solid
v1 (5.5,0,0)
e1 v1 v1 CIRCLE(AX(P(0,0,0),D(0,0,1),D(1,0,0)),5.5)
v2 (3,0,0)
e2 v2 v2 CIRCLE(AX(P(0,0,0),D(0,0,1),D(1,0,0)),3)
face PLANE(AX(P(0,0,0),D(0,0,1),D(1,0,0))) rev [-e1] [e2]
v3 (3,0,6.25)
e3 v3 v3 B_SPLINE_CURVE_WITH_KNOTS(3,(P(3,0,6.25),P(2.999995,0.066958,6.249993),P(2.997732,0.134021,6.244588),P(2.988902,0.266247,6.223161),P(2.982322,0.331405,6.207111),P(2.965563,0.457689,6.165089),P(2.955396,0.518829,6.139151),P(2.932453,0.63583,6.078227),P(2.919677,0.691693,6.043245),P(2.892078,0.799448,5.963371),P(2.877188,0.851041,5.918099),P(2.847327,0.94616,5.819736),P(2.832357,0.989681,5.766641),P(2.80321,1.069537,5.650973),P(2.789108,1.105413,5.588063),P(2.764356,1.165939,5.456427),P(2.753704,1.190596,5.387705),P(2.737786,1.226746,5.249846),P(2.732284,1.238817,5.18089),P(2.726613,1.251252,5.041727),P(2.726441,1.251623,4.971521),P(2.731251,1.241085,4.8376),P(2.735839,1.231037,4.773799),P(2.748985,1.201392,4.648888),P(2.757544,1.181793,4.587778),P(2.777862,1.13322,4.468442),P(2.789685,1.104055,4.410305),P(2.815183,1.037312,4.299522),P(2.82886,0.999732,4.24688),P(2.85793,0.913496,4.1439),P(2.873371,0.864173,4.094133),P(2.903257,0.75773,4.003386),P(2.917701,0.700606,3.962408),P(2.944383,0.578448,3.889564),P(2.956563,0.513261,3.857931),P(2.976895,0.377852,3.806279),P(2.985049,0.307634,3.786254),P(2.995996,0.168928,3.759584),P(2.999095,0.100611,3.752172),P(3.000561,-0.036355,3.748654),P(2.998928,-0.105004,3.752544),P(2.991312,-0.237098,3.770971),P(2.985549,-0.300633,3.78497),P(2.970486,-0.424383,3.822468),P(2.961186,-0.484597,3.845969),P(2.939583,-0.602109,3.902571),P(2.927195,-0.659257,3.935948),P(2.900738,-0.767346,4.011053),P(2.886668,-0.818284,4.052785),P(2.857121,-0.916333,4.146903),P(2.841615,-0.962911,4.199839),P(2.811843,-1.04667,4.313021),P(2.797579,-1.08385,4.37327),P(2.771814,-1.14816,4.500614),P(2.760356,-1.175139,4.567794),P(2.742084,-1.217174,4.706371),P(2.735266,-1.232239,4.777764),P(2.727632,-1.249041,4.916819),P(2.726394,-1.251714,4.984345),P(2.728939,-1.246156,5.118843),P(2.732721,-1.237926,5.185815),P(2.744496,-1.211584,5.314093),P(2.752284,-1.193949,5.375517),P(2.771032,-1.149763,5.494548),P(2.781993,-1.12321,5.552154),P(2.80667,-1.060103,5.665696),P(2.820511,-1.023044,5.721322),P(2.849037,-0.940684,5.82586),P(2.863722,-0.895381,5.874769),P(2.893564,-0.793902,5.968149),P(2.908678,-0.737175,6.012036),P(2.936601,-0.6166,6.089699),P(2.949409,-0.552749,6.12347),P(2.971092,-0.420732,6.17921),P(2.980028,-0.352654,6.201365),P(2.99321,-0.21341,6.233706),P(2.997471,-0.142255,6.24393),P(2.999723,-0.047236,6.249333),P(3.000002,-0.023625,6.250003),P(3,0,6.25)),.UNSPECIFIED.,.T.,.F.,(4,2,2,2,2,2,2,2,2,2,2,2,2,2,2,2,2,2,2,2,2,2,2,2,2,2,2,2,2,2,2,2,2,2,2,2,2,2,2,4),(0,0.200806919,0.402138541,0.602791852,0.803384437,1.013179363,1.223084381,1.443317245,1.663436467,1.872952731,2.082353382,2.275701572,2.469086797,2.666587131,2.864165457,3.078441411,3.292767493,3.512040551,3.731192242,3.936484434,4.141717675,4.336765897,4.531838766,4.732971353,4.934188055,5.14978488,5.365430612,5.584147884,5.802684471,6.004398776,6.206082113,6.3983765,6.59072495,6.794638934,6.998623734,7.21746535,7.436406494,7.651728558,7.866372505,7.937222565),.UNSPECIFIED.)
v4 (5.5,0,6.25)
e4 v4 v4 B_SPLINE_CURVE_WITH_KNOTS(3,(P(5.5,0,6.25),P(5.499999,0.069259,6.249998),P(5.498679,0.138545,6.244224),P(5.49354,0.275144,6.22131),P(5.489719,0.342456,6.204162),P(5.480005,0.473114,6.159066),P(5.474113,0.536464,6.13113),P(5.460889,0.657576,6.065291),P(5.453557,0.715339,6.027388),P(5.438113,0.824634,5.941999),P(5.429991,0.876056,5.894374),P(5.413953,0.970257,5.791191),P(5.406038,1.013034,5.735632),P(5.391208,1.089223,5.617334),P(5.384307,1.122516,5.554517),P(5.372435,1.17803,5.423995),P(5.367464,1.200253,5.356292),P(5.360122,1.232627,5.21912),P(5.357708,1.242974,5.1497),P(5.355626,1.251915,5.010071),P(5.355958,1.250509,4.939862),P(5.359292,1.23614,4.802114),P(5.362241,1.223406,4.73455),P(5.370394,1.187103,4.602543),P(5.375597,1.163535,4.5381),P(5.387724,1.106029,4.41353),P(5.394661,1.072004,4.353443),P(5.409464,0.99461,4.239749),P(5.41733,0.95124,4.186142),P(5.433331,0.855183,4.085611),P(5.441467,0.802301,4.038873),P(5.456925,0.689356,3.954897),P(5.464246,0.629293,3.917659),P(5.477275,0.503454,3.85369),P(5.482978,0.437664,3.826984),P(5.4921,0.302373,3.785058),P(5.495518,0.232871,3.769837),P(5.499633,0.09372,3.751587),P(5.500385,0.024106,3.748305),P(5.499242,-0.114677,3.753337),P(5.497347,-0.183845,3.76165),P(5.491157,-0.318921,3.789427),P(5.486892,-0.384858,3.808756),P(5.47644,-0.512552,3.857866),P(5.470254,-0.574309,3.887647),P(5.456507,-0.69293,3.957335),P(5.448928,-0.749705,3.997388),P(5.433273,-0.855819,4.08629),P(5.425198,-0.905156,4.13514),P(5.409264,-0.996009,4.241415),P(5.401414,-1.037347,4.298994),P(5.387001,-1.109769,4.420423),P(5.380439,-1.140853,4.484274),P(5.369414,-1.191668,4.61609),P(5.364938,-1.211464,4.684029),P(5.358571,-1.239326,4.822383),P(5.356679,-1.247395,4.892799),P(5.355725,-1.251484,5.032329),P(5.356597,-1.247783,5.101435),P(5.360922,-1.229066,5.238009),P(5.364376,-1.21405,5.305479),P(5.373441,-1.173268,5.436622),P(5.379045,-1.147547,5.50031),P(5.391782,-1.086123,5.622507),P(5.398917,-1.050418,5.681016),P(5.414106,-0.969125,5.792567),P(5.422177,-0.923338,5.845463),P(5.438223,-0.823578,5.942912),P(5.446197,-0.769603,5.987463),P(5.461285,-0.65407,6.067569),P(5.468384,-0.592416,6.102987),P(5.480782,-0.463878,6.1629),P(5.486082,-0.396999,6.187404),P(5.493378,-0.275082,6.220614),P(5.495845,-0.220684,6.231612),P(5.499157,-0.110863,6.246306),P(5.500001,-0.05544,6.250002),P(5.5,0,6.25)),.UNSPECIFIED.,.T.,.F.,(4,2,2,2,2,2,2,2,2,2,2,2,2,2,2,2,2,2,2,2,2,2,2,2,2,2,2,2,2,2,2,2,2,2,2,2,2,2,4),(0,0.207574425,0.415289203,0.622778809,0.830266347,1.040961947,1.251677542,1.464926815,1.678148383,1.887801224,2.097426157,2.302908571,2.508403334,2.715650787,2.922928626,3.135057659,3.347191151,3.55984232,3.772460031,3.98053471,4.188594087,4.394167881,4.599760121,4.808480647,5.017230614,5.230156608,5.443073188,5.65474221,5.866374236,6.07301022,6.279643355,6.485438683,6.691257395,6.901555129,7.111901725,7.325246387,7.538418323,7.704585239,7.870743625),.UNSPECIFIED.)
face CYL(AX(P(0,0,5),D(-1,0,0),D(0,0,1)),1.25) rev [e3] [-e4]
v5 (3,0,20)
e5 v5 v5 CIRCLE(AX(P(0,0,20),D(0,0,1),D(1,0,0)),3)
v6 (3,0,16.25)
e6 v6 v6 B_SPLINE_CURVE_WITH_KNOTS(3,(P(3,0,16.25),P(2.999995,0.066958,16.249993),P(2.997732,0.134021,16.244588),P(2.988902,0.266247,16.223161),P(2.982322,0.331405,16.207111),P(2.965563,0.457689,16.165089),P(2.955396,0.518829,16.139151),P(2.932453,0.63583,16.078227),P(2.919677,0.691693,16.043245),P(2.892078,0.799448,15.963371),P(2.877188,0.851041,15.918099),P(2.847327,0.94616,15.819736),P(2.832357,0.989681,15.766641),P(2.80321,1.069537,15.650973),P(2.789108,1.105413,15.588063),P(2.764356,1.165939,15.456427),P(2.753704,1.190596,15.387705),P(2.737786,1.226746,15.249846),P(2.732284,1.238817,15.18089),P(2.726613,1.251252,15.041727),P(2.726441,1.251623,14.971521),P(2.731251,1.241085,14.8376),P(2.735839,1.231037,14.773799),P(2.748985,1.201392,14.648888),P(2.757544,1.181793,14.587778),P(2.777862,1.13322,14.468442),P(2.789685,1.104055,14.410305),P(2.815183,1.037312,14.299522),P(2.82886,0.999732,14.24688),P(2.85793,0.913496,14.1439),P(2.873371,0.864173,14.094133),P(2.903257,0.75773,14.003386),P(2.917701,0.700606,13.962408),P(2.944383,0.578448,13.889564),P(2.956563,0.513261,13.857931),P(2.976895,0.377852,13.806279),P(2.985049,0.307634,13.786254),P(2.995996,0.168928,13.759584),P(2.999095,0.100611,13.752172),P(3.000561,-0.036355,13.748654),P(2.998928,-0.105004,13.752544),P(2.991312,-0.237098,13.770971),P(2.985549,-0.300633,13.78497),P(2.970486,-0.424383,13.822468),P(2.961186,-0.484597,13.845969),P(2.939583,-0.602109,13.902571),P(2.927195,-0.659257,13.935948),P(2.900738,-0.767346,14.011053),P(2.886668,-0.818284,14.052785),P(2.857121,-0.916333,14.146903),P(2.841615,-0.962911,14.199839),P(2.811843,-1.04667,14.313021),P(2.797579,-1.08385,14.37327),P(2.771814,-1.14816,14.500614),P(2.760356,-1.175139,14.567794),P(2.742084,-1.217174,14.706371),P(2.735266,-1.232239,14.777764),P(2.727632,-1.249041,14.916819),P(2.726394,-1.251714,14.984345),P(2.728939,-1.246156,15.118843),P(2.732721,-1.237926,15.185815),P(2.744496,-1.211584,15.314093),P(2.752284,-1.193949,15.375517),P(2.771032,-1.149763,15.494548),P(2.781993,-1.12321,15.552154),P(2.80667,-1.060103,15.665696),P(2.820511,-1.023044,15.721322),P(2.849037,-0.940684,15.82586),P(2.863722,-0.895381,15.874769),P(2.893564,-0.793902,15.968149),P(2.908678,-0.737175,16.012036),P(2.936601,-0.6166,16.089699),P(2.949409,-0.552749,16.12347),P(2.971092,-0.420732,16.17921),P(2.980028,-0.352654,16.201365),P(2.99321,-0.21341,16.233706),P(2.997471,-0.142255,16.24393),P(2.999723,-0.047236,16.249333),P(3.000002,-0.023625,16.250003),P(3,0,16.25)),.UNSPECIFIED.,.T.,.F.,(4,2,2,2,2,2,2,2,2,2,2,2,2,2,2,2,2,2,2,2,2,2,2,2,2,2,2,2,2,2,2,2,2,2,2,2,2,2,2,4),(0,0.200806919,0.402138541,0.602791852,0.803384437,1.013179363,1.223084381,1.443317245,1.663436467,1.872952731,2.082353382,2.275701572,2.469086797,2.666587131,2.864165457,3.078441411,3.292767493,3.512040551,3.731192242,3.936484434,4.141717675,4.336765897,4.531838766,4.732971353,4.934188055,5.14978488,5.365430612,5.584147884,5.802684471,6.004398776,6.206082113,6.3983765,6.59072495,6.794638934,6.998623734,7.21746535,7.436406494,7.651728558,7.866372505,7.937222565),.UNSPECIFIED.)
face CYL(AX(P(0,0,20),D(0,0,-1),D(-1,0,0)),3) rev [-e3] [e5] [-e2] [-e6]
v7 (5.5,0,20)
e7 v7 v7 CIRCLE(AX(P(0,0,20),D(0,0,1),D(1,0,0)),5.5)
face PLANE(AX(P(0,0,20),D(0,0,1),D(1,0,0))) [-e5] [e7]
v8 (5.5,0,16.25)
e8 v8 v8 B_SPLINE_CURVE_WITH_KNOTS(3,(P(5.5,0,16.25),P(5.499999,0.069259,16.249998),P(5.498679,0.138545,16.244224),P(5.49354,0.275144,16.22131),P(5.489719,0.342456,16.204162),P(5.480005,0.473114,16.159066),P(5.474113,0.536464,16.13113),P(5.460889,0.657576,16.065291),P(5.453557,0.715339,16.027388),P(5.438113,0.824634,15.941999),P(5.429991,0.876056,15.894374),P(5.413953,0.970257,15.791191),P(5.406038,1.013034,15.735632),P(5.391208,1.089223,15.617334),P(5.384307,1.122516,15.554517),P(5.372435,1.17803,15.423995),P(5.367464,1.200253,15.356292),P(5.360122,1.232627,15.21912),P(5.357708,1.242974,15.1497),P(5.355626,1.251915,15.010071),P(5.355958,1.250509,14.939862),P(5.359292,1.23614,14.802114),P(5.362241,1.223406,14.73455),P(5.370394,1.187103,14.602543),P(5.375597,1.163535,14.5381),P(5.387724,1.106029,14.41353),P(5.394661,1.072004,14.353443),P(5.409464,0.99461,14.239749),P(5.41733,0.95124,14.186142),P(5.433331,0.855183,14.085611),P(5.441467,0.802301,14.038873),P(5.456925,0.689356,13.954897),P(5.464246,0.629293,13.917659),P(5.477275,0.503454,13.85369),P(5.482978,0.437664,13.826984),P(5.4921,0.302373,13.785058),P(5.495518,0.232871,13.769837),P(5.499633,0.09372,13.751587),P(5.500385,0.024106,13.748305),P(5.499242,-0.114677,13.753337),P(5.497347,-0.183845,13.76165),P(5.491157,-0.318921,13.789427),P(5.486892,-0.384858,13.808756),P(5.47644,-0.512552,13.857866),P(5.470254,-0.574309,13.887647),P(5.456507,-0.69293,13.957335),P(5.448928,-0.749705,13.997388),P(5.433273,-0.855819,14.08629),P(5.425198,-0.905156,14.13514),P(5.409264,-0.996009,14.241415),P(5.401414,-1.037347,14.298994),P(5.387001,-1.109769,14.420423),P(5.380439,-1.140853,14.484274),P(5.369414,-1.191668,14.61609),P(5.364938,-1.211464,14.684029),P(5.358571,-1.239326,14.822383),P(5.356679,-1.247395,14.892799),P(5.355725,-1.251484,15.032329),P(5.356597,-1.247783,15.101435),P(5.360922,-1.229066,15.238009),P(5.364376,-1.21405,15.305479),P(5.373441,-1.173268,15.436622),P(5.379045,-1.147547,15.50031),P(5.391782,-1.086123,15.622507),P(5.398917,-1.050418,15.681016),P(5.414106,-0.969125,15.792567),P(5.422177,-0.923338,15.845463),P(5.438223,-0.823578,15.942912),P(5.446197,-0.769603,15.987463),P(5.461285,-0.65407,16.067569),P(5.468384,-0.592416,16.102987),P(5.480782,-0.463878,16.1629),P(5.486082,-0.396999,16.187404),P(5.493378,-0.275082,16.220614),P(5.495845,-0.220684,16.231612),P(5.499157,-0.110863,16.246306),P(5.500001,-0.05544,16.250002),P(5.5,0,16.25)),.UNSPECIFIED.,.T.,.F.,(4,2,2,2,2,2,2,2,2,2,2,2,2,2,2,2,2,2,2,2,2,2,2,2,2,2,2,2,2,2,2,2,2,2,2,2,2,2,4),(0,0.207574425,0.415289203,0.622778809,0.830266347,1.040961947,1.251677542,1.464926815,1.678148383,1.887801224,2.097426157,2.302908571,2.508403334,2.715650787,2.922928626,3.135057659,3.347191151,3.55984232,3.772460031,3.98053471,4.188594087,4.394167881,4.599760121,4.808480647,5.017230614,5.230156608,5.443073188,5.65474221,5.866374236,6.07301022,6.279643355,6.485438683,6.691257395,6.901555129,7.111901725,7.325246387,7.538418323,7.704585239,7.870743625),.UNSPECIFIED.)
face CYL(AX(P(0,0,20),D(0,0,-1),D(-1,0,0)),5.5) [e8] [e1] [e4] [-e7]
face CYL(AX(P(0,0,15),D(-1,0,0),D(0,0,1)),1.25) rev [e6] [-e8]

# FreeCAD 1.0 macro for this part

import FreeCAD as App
import Part
import Sketcher
from FreeCAD import Vector
Q = App.Units.Quantity


def add_polygon(sketch, points):
    """Adds a closed chain of lines whose ends are joined by coincident constraints."""
    first, n = sketch.GeometryCount, len(points)
    for a, b in zip(points, points[1:] + points[:1]):
        sketch.addGeometry(Part.LineSegment(App.Vector(*a, 0), App.Vector(*b, 0)), False)
    for i in range(n):
        sketch.addConstraint(Sketcher.Constraint("Coincident", first + i, 2, first + (i + 1) % n, 1))

doc = App.newDocument("Part")
body = doc.addObject("PartDesign::Body", "Body")

# Sketch on XY plane
sketch1 = body.newObject("Sketcher::SketchObject", "Sketch")
sketch1.AttachmentSupport = (doc.getObject("XY_Plane"), [""])
sketch1.MapMode = "FlatFace"
sketch1.addGeometry([
    Part.Circle(Vector(0, 0, 0), Vector(0, 0, 1), 5.5),
    Part.Circle(Vector(0, 0, 0), Vector(0, 0, 1), 3),
], False)
sketch1.addConstraint([
    Sketcher.Constraint("Coincident", 0, 3, -1, 1),
    Sketcher.Constraint("Coincident", 1, 3, -1, 1),
    Sketcher.Constraint("Diameter", 0, Q("11 mm")),
    Sketcher.Constraint("Diameter", 1, Q("6 mm")),
])
pad1 = body.newObject("PartDesign::Pad", "Pad")
pad1.Profile = sketch1
pad1.Length = 20

# Sketch on XZ plane
sketch2 = body.newObject("Sketcher::SketchObject", "Sketch001")
sketch2.AttachmentSupport = (doc.getObject("XZ_Plane"), [""])
sketch2.MapMode = "FlatFace"
add_polygon(sketch2, [(5.5, 5), (0, 5), (0, 6.275), (0.025, 6.25), (5.5, 6.25)])  # lines 0-4
sketch2.addGeometry(Part.LineSegment(Vector(0, 5, 0), Vector(5.5, 5, 0)), True)  # axis
sketch2.addConstraint([
    Sketcher.Constraint("Horizontal", 0),
    Sketcher.Constraint("Vertical", 1),
    Sketcher.Constraint("Horizontal", 3),
    Sketcher.Constraint("Vertical", 4),
    Sketcher.Constraint("Horizontal", 5),
    Sketcher.Constraint("Coincident", 5, 1, 0, 2),
    Sketcher.Constraint("PointOnObject", 0, 2, -2),
    Sketcher.Constraint("Vertical", 3, 2, 5, 2),
    Sketcher.Constraint("Angle", 2, Q("-45 deg")),
    Sketcher.Constraint("DistanceX", 0, 2, 0, 1, Q("5.5 mm")),
    Sketcher.Constraint("DistanceY", -1, 1, 0, 2, Q("5 mm")),
    Sketcher.Constraint("DistanceY", 4, 2, 4, 1, Q("1.25 mm")),
    Sketcher.Constraint("DistanceX", 3, 1, 3, 2, Q("5.475 mm")),
])
groove = body.newObject("PartDesign::Groove", "Groove")
groove.Profile = sketch2
groove.ReferenceAxis = (sketch2, ["Axis0"])
groove.Angle = 360
doc.recompute()

linearpattern = body.newObject("PartDesign::LinearPattern", "LinearPattern")
linearpattern.Originals = [groove]
linearpattern.Direction = (doc.getObject("Z_Axis"), [""])
linearpattern.Mode = "offset"
linearpattern.Offset = 10
linearpattern.Occurrences = 2
body.Tip = linearpattern

doc.recompute()
